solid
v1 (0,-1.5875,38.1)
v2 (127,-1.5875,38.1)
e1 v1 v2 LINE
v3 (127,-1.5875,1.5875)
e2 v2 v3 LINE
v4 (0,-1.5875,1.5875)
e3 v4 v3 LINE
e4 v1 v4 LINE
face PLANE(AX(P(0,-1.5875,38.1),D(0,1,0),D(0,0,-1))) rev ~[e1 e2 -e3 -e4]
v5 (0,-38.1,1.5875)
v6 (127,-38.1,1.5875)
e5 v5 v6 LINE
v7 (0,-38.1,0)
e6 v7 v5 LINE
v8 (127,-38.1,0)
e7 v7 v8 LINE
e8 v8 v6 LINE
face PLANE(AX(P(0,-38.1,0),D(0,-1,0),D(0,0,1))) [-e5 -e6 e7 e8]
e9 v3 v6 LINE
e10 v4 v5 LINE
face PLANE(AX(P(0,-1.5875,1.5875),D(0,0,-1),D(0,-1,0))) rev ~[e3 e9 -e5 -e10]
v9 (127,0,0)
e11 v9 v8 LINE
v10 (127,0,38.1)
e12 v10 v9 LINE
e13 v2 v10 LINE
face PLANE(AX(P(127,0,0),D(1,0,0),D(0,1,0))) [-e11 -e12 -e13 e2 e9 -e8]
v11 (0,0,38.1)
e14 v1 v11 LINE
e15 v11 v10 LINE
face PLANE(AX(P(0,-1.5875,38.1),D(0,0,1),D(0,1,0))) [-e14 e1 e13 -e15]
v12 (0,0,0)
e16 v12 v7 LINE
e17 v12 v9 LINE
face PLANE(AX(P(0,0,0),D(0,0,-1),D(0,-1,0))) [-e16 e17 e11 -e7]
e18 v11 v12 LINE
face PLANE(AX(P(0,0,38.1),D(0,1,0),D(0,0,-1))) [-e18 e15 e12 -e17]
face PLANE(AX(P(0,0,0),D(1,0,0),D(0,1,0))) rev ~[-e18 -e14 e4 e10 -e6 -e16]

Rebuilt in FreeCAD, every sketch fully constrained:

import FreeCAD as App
import Part
import Sketcher
Q = App.Units.Quantity


def add_polygon(sketch, points):
    """Adds a closed chain of lines whose ends are joined by coincident constraints."""
    first, n = sketch.GeometryCount, len(points)
    for a, b in zip(points, points[1:] + points[:1]):
        sketch.addGeometry(Part.LineSegment(App.Vector(*a, 0), App.Vector(*b, 0)), False)
    for i in range(n):
        sketch.addConstraint(Sketcher.Constraint("Coincident", first + i, 2, first + (i + 1) % n, 1))

doc = App.newDocument("Part")
body = doc.addObject("PartDesign::Body", "Body")

sketch1 = body.newObject("Sketcher::SketchObject", "Sketch")
sketch1.AttachmentSupport = (doc.getObject("YZ_Plane"), [""])
sketch1.MapMode = "FlatFace"
add_polygon(sketch1, [(0, 38.1), (-1.6, 38.1), (-1.6, 1.6), (-38.1, 1.6), (-38.1, 0), (0, 0)])
sketch1.addConstraint(Sketcher.Constraint("Horizontal", 0))
sketch1.addConstraint(Sketcher.Constraint("Vertical", 1))
sketch1.addConstraint(Sketcher.Constraint("Horizontal", 2))
sketch1.addConstraint(Sketcher.Constraint("Vertical", 3))
sketch1.addConstraint(Sketcher.Constraint("Horizontal", 4))
sketch1.addConstraint(Sketcher.Constraint("Vertical", 5))
sketch1.addConstraint(Sketcher.Constraint("Coincident", 4, 2, -1, 1))
sketch1.addConstraint(Sketcher.Constraint("Equal", 2, 1))
sketch1.addConstraint(Sketcher.Constraint("Equal", 0, 3))
sketch1.addConstraint(Sketcher.Constraint("DistanceX", 4, 1, 4, 2, Q("1.5 in")))
sketch1.addConstraint(Sketcher.Constraint("DistanceX", 0, 2, 0, 1, Q("0.0625 in")))
pad1 = body.newObject("PartDesign::Pad", "Pad")
pad1.Profile = sketch1
pad1.Length = Q("5 in")

doc.recompute()
